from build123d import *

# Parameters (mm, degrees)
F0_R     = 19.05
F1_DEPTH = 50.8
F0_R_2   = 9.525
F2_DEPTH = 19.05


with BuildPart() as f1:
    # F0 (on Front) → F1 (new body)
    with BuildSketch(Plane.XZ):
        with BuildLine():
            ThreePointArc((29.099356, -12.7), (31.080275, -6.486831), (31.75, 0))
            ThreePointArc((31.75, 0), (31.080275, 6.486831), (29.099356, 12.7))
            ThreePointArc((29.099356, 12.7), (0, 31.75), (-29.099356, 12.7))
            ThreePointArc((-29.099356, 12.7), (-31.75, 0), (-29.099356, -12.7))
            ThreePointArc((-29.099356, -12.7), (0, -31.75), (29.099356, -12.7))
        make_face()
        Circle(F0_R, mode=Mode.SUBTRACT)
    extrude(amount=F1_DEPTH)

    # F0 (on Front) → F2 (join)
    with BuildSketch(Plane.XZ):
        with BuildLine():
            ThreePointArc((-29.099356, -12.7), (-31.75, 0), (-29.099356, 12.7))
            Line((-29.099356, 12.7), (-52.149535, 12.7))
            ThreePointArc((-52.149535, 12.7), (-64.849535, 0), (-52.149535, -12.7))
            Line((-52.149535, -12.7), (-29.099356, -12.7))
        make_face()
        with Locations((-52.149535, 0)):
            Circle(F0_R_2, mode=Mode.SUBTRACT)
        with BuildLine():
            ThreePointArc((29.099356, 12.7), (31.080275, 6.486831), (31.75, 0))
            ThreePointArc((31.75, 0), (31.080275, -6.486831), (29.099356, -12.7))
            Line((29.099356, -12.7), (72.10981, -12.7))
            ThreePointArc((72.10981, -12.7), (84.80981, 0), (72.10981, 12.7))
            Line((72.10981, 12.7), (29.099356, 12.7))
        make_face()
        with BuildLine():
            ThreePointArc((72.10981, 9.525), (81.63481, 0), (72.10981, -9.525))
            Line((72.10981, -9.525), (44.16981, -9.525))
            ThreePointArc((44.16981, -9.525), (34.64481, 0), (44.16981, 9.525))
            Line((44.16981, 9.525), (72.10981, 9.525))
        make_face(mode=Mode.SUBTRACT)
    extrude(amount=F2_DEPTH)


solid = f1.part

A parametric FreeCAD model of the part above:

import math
import FreeCAD as App
import Part
import Sketcher
from FreeCAD import Vector
Q = App.Units.Quantity

doc = App.newDocument("Part")
body = doc.addObject("PartDesign::Body", "Body")

sketch1 = body.newObject("Sketcher::SketchObject", "Sketch")
sketch1.AttachmentSupport = (doc.getObject("XZ_Plane"), [""])
sketch1.MapMode = "FlatFace"
sketch1.addGeometry([
    Part.ArcOfCircle(Part.Circle(Vector(-0.000029, 0.000005, 0), Vector(0, 0, 1), 31.750029), math.radians(-23.578166), math.radians(-0.000009)),
    Part.ArcOfCircle(Part.Circle(Vector(-0.000029, -0.000005, 0), Vector(0, 0, 1), 31.750029), math.radians(0.000009), math.radians(23.578166)),
    Part.ArcOfCircle(Part.Circle(Vector(0, -0.000001, 0), Vector(0, 0, 1), 31.750001), math.radians(23.578179), math.radians(156.421821)),
    Part.ArcOfCircle(Part.Circle(Vector(0.000004, 0, 0), Vector(0, 0, 1), 31.750004), math.radians(156.421824), math.radians(203.578176)),
    Part.ArcOfCircle(Part.Circle(Vector(0, 0.000001, 0), Vector(0, 0, 1), 31.750001), math.radians(-156.421821), math.radians(-23.578179)),
    Part.Circle(Vector(0, 0, 0), Vector(0, 0, 1), 19.05),
], False)
sketch1.addConstraint([
    Sketcher.Constraint("Coincident", 0, 2, 1, 1),
    Sketcher.Constraint("Coincident", 1, 2, 2, 1),
    Sketcher.Constraint("Coincident", 2, 2, 3, 1),
    Sketcher.Constraint("Coincident", 3, 2, 4, 1),
    Sketcher.Constraint("Coincident", 4, 2, 0, 1),
    Sketcher.Constraint("Coincident", 2, 3, -1, 1),
    Sketcher.Constraint("Coincident", 3, 3, -1, 1),
    Sketcher.Constraint("Coincident", 4, 3, -1, 1),
    Sketcher.Constraint("Coincident", 5, 3, -1, 1),
    Sketcher.Constraint("PointOnObject", 0, 2, -1),
    Sketcher.Constraint("Diameter", 5, Q("1.5 in")),
    Sketcher.Constraint("Radius", 2, Q("1.25 in")),
    Sketcher.Constraint("DistanceY", 3, 2, 2, 2, Q("1 in")),
    Sketcher.Constraint("DistanceY", 4, 2, 1, 2, Q("1 in")),
    Sketcher.Constraint("DistanceY", -1, 1, 1, 2, Q("0.5 in")),
    Sketcher.Constraint("DistanceY", -1, 1, 2, 2, Q("0.5 in")),
    Sketcher.Constraint("DistanceX", -1, 1, 0, 2, Q("1.25 in")),
    Sketcher.Constraint("Radius", 0, 31.750029),
    Sketcher.Constraint("Radius", 1, 31.750029),
])
pad1 = body.newObject("PartDesign::Pad", "Pad")
pad1.Profile = sketch1
pad1.Length = Q("2 in")

sketch2 = body.newObject("Sketcher::SketchObject", "Sketch001")
sketch2.AttachmentSupport = (doc.getObject("XZ_Plane"), [""])
sketch2.MapMode = "FlatFace"
sketch2.addGeometry([
    Part.ArcOfCircle(Part.Circle(Vector(0, 0, 0), Vector(0, 0, 1), 32), math.radians(156), math.radians(204)),
    Part.LineSegment(Vector(-29, 13, 0), Vector(-52, 13, 0)),
    Part.ArcOfCircle(Part.Circle(Vector(-52, 0, 0), Vector(0, 0, 1), 13), math.radians(90), math.radians(270)),
    Part.LineSegment(Vector(-52, -13, 0), Vector(-29, -13, 0)),
    Part.Circle(Vector(-52, 0, 0), Vector(0, 0, 1), 10),
    Part.ArcOfCircle(Part.Circle(Vector(0, 0, 0), Vector(0, 0, 1), 32), math.radians(0), math.radians(24)),
    Part.ArcOfCircle(Part.Circle(Vector(0, 0, 0), Vector(0, 0, 1), 32), math.radians(-24), math.radians(0)),
    Part.LineSegment(Vector(29, -13, 0), Vector(72, -13, 0)),
    Part.ArcOfCircle(Part.Circle(Vector(72, 0, 0), Vector(0, 0, 1), 13), math.radians(-90), math.radians(90)),
    Part.LineSegment(Vector(72, 13, 0), Vector(29, 13, 0)),
    Part.LineSegment(Vector(44, 10, 0), Vector(72, 10, 0)),
    Part.ArcOfCircle(Part.Circle(Vector(72, 0, 0), Vector(0, 0, 1), 10), math.radians(-90), math.radians(90)),
    Part.LineSegment(Vector(72, -10, 0), Vector(44, -10, 0)),
    Part.ArcOfCircle(Part.Circle(Vector(44, 0, 0), Vector(0, 0, 1), 10), math.radians(90), math.radians(270)),
], False)
sketch2.addConstraint([
    Sketcher.Constraint("Coincident", 0, 1, 1, 1),
    Sketcher.Constraint("Tangent", 1, 2, 2, 1),
    Sketcher.Constraint("Tangent", 2, 2, 3, 1),
    Sketcher.Constraint("Coincident", 3, 2, 0, 2),
    Sketcher.Constraint("Tangent", 5, 1, 6, 2),
    Sketcher.Constraint("Coincident", 6, 1, 7, 1),
    Sketcher.Constraint("Tangent", 7, 2, 8, 1),
    Sketcher.Constraint("Tangent", 8, 2, 9, 1),
    Sketcher.Constraint("Coincident", 9, 2, 5, 2),
    Sketcher.Constraint("Tangent", 10, 2, 11, 2),
    Sketcher.Constraint("Tangent", 11, 1, 12, 1),
    Sketcher.Constraint("Tangent", 12, 2, 13, 2),
    Sketcher.Constraint("Tangent", 13, 1, 10, 1),
    Sketcher.Constraint("Horizontal", 1),
    Sketcher.Constraint("Horizontal", 3),
    Sketcher.Constraint("Horizontal", 7),
    Sketcher.Constraint("Horizontal", 9),
    Sketcher.Constraint("Horizontal", 10),
    Sketcher.Constraint("Horizontal", 12),
    Sketcher.Constraint("Coincident", 0, 3, -1, 1),
    Sketcher.Constraint("Coincident", 4, 3, 2, 3),
    Sketcher.Constraint("Coincident", 11, 3, 8, 3),
    Sketcher.Constraint("Equal", 5, 6),
    Sketcher.Constraint("Equal", 2, 8),
    Sketcher.Constraint("Equal", 4, 11),
    Sketcher.Constraint("Symmetric", 0, 1, 6, 1, -1, 1),
    Sketcher.Constraint("Symmetric", 0, 1, 9, 2, -2),
    Sketcher.Constraint("PointOnObject", 5, 1, -1),
    Sketcher.Constraint("Radius", 2, Q("0.5 in")),
    Sketcher.Constraint("Diameter", 4, Q("0.75 in")),
    Sketcher.Constraint("Radius", 0, Q("1.2500001 in")),
    Sketcher.Constraint("DistanceX", 10, 1, 10, 2, Q("1.1 in")),
    Sketcher.Constraint("DistanceX", -1, 1, 5, 1, Q("1.25 in")),
    Sketcher.Constraint("DistanceX", 2, 3, 8, 3, Q("4.8921002 in")),
    Sketcher.Constraint("DistanceX", 1, 2, 1, 1, 23.050179),
])
pad2 = body.newObject("PartDesign::Pad", "Pad001")
pad2.Profile = sketch2
pad2.Length = Q("0.75 in")

doc.recompute()
